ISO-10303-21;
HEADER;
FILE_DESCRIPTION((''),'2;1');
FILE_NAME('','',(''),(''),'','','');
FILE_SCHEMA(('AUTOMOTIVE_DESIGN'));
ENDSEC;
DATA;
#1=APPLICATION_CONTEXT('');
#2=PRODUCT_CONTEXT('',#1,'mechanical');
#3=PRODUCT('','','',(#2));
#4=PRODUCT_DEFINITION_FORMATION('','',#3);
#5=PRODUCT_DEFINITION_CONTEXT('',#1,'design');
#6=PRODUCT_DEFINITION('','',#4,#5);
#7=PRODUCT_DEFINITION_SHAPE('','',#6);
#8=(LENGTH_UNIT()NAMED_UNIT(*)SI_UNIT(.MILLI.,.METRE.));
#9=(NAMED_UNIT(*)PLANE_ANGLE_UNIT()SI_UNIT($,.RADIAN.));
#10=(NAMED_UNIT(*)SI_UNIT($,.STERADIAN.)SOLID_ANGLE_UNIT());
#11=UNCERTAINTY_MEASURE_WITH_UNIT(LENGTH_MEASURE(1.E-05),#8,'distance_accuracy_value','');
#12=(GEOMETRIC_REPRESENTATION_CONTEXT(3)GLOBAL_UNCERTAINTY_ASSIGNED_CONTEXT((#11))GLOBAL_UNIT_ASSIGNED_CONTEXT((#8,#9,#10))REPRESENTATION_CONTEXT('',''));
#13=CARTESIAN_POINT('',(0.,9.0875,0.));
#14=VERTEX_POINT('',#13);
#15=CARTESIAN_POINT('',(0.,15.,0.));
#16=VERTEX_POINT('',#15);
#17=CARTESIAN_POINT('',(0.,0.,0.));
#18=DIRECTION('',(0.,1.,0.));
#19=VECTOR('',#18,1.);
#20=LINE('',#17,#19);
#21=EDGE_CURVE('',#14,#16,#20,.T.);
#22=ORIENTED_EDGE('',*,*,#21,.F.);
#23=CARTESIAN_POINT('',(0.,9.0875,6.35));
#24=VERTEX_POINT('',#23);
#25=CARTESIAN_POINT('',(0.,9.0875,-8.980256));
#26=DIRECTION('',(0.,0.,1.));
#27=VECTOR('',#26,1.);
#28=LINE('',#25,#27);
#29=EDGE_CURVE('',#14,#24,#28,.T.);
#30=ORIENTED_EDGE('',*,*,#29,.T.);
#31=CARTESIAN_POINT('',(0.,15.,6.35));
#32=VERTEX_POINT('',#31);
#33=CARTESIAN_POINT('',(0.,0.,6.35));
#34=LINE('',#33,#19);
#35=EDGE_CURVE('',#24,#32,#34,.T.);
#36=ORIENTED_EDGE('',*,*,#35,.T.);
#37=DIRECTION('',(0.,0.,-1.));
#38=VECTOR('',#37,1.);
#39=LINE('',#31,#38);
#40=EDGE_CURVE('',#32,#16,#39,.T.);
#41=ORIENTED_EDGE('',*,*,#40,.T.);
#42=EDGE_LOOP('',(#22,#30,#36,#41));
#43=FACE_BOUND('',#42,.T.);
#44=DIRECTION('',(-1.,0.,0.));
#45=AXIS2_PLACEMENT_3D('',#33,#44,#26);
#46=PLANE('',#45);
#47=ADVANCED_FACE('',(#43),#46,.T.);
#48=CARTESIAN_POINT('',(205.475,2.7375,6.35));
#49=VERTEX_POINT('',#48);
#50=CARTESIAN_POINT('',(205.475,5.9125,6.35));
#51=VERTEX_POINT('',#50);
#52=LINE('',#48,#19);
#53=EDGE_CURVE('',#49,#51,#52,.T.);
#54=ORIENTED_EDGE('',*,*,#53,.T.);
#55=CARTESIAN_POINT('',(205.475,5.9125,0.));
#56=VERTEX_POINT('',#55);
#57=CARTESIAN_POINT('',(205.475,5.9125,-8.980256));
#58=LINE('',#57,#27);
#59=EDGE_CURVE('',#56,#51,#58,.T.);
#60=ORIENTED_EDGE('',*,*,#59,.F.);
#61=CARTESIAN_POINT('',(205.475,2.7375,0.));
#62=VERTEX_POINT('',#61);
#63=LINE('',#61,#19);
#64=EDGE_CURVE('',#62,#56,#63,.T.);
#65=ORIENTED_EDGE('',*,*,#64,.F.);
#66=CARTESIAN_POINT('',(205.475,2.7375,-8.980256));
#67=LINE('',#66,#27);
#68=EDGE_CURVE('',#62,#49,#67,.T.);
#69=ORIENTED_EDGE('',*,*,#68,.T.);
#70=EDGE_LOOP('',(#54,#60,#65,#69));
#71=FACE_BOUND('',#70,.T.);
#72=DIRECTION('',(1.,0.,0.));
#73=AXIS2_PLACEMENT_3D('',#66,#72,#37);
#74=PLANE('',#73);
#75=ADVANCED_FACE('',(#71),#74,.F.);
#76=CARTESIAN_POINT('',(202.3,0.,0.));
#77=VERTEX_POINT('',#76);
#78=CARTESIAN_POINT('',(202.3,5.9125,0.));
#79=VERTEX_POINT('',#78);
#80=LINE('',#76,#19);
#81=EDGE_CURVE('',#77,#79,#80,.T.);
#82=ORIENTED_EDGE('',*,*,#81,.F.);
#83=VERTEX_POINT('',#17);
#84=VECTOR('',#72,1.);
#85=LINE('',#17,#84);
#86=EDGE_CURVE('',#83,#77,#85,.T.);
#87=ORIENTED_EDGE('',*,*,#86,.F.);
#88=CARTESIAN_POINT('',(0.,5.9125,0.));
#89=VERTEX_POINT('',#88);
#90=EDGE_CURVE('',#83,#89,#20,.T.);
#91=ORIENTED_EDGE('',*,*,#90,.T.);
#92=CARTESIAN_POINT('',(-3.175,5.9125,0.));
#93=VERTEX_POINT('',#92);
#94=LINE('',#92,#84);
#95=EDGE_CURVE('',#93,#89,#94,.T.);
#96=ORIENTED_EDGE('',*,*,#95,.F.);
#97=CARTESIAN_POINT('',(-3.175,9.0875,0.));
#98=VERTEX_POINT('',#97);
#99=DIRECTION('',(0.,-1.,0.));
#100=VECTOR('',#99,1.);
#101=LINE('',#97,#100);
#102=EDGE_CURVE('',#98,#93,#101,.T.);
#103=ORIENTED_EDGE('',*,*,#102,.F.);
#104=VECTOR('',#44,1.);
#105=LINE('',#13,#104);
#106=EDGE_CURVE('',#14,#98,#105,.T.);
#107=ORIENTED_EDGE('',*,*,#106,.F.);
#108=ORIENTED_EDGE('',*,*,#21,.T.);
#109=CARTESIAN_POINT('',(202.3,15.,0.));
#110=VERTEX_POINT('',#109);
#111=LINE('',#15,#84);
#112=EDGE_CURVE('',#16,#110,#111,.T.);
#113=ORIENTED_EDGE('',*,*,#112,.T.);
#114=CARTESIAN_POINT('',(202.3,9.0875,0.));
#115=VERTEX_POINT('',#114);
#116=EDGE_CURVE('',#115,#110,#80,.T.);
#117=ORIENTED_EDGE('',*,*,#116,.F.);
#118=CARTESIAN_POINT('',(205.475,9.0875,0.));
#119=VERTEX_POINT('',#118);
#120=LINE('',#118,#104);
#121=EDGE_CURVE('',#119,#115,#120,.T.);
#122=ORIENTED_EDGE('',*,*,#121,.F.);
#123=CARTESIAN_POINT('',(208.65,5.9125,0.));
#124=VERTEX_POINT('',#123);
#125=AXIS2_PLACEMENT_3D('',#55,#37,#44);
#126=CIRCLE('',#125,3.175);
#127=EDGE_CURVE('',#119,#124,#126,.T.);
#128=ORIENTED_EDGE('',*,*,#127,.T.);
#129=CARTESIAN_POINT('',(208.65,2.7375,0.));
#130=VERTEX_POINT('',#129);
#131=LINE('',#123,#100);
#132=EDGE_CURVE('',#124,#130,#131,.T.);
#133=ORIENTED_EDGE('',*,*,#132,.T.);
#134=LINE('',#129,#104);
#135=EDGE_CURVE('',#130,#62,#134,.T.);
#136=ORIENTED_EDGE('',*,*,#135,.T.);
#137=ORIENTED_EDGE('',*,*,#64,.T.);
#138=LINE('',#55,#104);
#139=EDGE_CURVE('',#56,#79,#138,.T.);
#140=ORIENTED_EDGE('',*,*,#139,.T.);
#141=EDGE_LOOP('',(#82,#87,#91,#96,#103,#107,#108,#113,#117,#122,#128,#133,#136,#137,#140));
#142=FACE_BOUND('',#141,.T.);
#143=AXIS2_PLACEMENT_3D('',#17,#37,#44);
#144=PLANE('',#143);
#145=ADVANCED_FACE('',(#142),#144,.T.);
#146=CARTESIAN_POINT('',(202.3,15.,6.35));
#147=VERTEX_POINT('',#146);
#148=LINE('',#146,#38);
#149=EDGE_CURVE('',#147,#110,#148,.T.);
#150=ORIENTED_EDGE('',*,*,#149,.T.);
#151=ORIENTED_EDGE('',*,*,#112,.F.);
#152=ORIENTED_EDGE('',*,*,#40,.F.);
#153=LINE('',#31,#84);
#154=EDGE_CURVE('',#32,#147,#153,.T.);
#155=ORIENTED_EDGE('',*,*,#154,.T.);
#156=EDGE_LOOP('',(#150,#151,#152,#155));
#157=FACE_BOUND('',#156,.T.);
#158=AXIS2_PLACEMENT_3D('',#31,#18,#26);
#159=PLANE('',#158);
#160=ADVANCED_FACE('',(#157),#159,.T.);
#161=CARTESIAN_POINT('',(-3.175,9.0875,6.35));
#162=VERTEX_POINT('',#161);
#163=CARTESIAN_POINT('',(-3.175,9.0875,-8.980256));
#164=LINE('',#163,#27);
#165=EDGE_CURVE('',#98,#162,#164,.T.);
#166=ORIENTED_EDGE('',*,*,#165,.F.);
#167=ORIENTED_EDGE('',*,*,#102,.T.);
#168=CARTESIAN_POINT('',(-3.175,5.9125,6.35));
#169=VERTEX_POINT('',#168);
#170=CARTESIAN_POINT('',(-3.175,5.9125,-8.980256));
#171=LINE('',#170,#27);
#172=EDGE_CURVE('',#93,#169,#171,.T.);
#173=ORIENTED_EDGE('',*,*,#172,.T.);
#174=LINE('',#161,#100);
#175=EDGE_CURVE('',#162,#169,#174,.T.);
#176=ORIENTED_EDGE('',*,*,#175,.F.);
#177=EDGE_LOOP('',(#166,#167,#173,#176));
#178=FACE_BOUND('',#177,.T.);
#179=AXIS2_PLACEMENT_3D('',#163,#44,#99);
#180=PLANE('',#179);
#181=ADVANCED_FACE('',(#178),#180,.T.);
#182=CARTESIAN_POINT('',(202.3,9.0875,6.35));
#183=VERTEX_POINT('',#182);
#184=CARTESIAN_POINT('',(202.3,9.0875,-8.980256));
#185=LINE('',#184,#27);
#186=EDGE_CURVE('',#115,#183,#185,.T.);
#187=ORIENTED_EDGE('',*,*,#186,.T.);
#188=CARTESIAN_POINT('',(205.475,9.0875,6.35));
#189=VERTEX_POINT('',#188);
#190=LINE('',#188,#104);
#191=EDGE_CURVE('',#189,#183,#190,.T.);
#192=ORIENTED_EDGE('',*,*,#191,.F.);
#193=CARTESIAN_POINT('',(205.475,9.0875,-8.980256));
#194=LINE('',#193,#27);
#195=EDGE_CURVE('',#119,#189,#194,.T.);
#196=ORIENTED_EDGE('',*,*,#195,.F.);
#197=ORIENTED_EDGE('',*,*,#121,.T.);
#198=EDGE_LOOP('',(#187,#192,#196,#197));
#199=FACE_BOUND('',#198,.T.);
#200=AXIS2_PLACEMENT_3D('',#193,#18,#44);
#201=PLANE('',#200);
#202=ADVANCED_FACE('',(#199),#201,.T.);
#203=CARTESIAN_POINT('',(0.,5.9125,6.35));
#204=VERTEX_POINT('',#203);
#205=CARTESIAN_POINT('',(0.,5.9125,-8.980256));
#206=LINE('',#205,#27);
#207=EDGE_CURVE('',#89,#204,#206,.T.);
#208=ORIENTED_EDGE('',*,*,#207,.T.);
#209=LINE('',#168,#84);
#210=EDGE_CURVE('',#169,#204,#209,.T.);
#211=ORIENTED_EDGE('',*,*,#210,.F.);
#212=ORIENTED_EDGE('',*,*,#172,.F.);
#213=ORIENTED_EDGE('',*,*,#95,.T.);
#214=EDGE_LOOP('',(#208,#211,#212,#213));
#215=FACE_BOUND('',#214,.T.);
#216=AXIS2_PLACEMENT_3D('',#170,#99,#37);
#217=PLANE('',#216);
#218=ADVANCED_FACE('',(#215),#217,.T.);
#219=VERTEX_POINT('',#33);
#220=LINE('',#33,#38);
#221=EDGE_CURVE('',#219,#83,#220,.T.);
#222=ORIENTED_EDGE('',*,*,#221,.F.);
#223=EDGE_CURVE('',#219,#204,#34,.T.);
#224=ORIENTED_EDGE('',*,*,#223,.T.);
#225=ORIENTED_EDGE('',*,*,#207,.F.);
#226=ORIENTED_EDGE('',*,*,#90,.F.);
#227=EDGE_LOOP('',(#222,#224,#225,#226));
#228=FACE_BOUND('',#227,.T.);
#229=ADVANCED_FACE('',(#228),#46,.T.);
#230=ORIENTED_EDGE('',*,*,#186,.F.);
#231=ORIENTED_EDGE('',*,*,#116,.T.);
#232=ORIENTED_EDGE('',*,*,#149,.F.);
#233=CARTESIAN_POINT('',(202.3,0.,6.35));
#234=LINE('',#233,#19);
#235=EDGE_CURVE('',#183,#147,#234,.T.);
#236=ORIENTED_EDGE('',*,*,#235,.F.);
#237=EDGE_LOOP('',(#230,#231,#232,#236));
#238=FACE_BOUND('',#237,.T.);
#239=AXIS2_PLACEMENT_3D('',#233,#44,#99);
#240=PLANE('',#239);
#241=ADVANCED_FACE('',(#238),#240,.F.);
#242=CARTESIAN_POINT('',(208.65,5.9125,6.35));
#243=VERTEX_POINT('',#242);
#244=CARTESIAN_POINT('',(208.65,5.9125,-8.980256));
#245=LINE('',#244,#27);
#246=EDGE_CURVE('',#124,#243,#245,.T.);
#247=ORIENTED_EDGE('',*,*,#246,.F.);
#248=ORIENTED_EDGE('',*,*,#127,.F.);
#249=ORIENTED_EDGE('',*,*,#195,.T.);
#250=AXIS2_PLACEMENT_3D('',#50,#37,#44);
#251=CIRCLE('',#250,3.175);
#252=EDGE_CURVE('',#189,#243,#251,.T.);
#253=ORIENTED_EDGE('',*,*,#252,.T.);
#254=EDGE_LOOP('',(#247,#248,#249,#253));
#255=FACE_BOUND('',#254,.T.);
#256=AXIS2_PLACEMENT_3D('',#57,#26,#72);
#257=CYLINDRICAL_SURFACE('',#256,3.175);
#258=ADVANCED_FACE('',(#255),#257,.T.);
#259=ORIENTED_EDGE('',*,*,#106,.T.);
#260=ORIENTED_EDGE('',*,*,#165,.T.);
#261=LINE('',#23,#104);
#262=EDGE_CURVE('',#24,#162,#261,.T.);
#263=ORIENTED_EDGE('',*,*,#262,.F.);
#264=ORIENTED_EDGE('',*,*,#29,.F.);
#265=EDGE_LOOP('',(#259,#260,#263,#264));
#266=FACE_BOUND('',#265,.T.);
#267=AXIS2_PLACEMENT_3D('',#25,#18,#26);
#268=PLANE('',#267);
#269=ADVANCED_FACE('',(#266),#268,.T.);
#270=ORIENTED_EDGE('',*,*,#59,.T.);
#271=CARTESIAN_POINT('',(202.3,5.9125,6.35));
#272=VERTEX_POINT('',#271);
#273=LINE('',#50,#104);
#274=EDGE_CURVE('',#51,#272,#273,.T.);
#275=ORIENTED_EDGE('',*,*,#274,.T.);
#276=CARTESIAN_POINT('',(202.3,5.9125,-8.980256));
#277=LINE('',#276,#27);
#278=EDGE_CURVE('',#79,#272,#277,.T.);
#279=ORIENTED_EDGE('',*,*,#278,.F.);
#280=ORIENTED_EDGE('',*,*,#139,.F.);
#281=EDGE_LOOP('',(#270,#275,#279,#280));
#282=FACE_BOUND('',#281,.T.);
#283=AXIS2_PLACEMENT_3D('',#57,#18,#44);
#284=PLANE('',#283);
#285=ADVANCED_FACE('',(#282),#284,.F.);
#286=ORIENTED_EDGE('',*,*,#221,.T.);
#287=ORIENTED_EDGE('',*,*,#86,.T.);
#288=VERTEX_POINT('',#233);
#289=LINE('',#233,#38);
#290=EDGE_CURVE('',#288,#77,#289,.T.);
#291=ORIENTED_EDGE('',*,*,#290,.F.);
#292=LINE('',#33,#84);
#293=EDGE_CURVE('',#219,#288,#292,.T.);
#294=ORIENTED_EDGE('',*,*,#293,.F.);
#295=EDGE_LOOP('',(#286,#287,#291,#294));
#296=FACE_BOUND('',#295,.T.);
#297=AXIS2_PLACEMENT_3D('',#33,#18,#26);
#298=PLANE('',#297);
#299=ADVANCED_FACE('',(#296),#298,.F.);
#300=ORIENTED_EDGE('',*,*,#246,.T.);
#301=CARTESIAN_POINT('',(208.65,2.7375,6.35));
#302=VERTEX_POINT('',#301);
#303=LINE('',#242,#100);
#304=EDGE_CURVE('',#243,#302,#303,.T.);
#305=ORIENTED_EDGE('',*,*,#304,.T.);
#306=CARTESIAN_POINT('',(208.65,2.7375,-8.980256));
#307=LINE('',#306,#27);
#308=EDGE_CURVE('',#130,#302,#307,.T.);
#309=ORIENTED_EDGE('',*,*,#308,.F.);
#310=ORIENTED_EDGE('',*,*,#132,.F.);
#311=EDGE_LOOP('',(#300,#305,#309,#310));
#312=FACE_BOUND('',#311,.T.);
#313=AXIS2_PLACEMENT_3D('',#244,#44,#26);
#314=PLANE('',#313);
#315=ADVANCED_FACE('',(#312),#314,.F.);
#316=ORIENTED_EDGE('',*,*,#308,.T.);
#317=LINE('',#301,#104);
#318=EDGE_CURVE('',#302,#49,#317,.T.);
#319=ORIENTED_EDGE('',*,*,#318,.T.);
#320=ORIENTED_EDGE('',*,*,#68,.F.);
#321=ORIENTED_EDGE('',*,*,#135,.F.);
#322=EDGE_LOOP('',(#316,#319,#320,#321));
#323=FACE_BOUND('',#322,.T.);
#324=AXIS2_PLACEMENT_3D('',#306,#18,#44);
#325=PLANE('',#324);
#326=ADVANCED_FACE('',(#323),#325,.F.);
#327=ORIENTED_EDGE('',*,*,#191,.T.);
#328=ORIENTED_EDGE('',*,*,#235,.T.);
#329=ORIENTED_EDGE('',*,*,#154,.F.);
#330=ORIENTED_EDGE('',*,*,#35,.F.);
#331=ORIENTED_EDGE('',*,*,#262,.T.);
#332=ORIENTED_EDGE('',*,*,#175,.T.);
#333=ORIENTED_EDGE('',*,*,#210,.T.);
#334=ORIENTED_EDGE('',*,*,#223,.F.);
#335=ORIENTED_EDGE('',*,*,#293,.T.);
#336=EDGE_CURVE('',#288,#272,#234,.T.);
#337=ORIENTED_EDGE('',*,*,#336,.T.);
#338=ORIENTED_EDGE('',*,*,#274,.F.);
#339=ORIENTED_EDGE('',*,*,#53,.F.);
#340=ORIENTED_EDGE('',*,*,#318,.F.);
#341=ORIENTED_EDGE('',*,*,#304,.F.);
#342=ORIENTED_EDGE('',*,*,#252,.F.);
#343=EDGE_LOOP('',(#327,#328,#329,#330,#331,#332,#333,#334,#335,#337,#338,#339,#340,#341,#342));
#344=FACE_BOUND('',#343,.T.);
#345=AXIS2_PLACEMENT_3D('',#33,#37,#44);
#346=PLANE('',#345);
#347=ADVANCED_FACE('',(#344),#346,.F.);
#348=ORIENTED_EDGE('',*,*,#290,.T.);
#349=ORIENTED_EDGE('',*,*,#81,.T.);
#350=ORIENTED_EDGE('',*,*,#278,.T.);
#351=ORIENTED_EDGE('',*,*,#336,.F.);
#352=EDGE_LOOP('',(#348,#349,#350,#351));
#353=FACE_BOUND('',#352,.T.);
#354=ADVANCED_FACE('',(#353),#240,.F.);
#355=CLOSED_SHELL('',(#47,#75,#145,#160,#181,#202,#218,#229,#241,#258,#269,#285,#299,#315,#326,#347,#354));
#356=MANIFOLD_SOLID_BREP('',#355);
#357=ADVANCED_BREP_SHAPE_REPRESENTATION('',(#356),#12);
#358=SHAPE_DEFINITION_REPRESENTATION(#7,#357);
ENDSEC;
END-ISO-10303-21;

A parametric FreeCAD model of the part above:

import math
import FreeCAD as App
import Part
import Sketcher
from FreeCAD import Vector
Q = App.Units.Quantity


def add_polygon(sketch, points):
    """Adds a closed chain of lines whose ends are joined by coincident constraints."""
    first, n = sketch.GeometryCount, len(points)
    for a, b in zip(points, points[1:] + points[:1]):
        sketch.addGeometry(Part.LineSegment(App.Vector(*a, 0), App.Vector(*b, 0)), False)
    for i in range(n):
        sketch.addConstraint(Sketcher.Constraint("Coincident", first + i, 2, first + (i + 1) % n, 1))

doc = App.newDocument("Part")
body = doc.addObject("PartDesign::Body", "Body")

# Sketch on XY plane
sketch1 = body.newObject("Sketcher::SketchObject", "Sketch")
sketch1.AttachmentSupport = (doc.getObject("XY_Plane"), [""])
sketch1.MapMode = "FlatFace"
add_polygon(sketch1, [(0, 15), (0, 0), (202, 0), (202, 15)])  # lines 0-3
sketch1.addConstraint([
    Sketcher.Constraint("Vertical", 0),
    Sketcher.Constraint("Horizontal", 1),
    Sketcher.Constraint("Vertical", 2),
    Sketcher.Constraint("Horizontal", 3),
    Sketcher.Constraint("Coincident", 0, 2, -1, 1),
    Sketcher.Constraint("DistanceY", 0, 2, 0, 1, Q("15 mm")),
    Sketcher.Constraint("DistanceX", 1, 1, 1, 2, Q("202.3 mm")),
])
pad1 = body.newObject("PartDesign::Pad", "Pad")
pad1.Profile = sketch1
pad1.Length = 6.35

# Sketch on XY plane
sketch2 = body.newObject("Sketcher::SketchObject", "Sketch001")
sketch2.AttachmentSupport = (doc.getObject("XY_Plane"), [""])
sketch2.MapMode = "FlatFace"
sketch2.AttachmentOffset = App.Placement(Vector(0, 0, 6.35), App.Rotation())
sketch2.addGeometry(Part.LineSegment(Vector(208.7, 2.7, 0), Vector(208.7, 5.9, 0)), False)  # 0
sketch2.addGeometry(Part.ArcOfCircle(Part.Circle(Vector(205.5, 5.9, 0), Vector(0, 0, 1), 3.2), math.radians(0), math.radians(90)), False)  # 1
sketch2.addGeometry(Part.LineSegment(Vector(205.5, 9.1, 0), Vector(202.3, 9.1, 0)), False)  # 2
sketch2.addGeometry(Part.LineSegment(Vector(202.3, 9.1, 0), Vector(202.3, 5.9, 0)), False)  # 3
sketch2.addGeometry(Part.LineSegment(Vector(202.3, 5.9, 0), Vector(205.5, 5.9, 0)), False)  # 4
sketch2.addGeometry(Part.LineSegment(Vector(205.5, 5.9, 0), Vector(205.5, 2.7, 0)), False)  # 5
sketch2.addGeometry(Part.LineSegment(Vector(205.5, 2.7, 0), Vector(208.7, 2.7, 0)), False)  # 6
add_polygon(sketch2, [(0, 9.1), (-3.2, 9.1), (-3.2, 5.9), (0, 5.9)])  # lines 7-10
sketch2.addConstraint([
    Sketcher.Constraint("Tangent", 0, 2, 1, 1),
    Sketcher.Constraint("Tangent", 1, 2, 2, 1),
    Sketcher.Constraint("Coincident", 2, 2, 3, 1),
    Sketcher.Constraint("Coincident", 3, 2, 4, 1),
    Sketcher.Constraint("Coincident", 4, 2, 5, 1),
    Sketcher.Constraint("Coincident", 5, 2, 6, 1),
    Sketcher.Constraint("Coincident", 6, 2, 0, 1),
    Sketcher.Constraint("Vertical", 0),
    Sketcher.Constraint("Horizontal", 2),
    Sketcher.Constraint("Vertical", 3),
    Sketcher.Constraint("Horizontal", 4),
    Sketcher.Constraint("Vertical", 5),
    Sketcher.Constraint("Horizontal", 6),
    Sketcher.Constraint("Horizontal", 7),
    Sketcher.Constraint("Vertical", 8),
    Sketcher.Constraint("Horizontal", 9),
    Sketcher.Constraint("Vertical", 10),
    Sketcher.Constraint("Coincident", 4, 2, 1, 3),
    Sketcher.Constraint("PointOnObject", 9, 2, -2),
    Sketcher.Constraint("Horizontal", 2, 2, 7, 2),
    Sketcher.Constraint("Horizontal", 4, 2, 8, 2),
    Sketcher.Constraint("Equal", 4, 6),
    Sketcher.Constraint("Equal", 6, 7),
    Sketcher.Constraint("Equal", 9, 0),
    Sketcher.Constraint("Radius", 1, Q("3.175 mm")),
    Sketcher.Constraint("DistanceX", -1, 1, 2, 2, Q("202.3 mm")),
    Sketcher.Constraint("DistanceY", -1, 1, 1, 3, Q("5.9125 mm")),
])
pad2 = body.newObject("PartDesign::Pad", "Pad001")
pad2.Profile = sketch2
pad2.Length = 6.35
pad2.Reversed = True

doc.recompute()
